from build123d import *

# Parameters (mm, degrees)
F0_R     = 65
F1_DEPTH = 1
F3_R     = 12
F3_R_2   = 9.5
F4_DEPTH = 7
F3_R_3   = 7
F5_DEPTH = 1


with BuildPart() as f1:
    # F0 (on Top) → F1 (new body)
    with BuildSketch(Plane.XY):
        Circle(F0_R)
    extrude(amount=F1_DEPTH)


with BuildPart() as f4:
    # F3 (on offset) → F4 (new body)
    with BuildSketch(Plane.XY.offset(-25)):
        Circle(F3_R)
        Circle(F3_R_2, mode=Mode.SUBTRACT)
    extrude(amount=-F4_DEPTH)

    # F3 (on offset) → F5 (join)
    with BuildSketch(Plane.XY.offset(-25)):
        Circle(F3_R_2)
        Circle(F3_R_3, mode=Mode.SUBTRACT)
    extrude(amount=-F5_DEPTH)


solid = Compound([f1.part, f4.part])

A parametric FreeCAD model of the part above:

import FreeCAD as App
import Part
import Sketcher
from FreeCAD import Vector
Q = App.Units.Quantity

doc = App.newDocument("Part")
body = doc.addObject("PartDesign::Body", "Body")

# Sketch on XY plane
sketch1 = body.newObject("Sketcher::SketchObject", "Sketch")
sketch1.AttachmentSupport = (doc.getObject("XY_Plane"), [""])
sketch1.MapMode = "FlatFace"
sketch1.addGeometry(Part.Circle(Vector(0, 0, 0), Vector(0, 0, 1), 65), False)
sketch1.addConstraint([
    Sketcher.Constraint("Coincident", 0, 3, -1, 1),
    Sketcher.Constraint("Diameter", 0, Q("130 mm")),
])
pad1 = body.newObject("PartDesign::Pad", "Pad")
pad1.Profile = sketch1
pad1.Length = 1
body2 = doc.addObject("PartDesign::Body", "Body001")

# Sketch on XY plane
sketch2 = body2.newObject("Sketcher::SketchObject", "Sketch001")
sketch2.AttachmentSupport = (doc.getObject("XY_Plane001"), [""])
sketch2.MapMode = "FlatFace"
sketch2.AttachmentOffset = App.Placement(Vector(0, 0, -25), App.Rotation())
sketch2.addGeometry([
    Part.Circle(Vector(0, 0, 0), Vector(0, 0, 1), 12),
    Part.Circle(Vector(0, 0, 0), Vector(0, 0, 1), 10),
], False)
sketch2.addConstraint([
    Sketcher.Constraint("Coincident", 0, 3, -1, 1),
    Sketcher.Constraint("Coincident", 1, 3, -1, 1),
    Sketcher.Constraint("Diameter", 0, Q("24 mm")),
    Sketcher.Constraint("Diameter", 1, Q("19 mm")),
])
pad2 = body2.newObject("PartDesign::Pad", "Pad001")
pad2.Profile = sketch2
pad2.Length = 7
pad2.Reversed = True

# Sketch on XY plane
sketch3 = body2.newObject("Sketcher::SketchObject", "Sketch002")
sketch3.AttachmentSupport = (doc.getObject("XY_Plane001"), [""])
sketch3.MapMode = "FlatFace"
sketch3.AttachmentOffset = App.Placement(Vector(0, 0, -25), App.Rotation())
sketch3.addGeometry([
    Part.Circle(Vector(0, 0, 0), Vector(0, 0, 1), 10),
    Part.Circle(Vector(0, 0, 0), Vector(0, 0, 1), 7),
], False)
sketch3.addConstraint([
    Sketcher.Constraint("Coincident", 0, 3, -1, 1),
    Sketcher.Constraint("Coincident", 1, 3, -1, 1),
    Sketcher.Constraint("Diameter", 0, Q("19 mm")),
    Sketcher.Constraint("Diameter", 1, Q("14 mm")),
])
pad3 = body2.newObject("PartDesign::Pad", "Pad002")
pad3.Profile = sketch3
pad3.Length = 1
pad3.Reversed = True

doc.recompute()
